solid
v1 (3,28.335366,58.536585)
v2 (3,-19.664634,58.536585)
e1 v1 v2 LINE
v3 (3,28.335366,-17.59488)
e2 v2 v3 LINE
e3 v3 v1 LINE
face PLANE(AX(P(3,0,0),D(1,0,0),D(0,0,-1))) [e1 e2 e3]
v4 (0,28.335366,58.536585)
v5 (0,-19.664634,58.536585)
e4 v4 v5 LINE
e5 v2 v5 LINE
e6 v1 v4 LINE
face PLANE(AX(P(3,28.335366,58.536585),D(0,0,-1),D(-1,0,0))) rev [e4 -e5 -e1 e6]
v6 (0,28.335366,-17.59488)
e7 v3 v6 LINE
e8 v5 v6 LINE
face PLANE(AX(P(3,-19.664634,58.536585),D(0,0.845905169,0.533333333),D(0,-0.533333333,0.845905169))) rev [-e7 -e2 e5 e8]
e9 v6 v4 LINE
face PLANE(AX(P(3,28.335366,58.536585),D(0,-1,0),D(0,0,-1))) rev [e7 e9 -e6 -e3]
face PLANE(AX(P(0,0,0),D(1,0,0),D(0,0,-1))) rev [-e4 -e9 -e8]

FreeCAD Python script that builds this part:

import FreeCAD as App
import Part
import Sketcher

V = App.Vector

doc = App.newDocument("Part")
body = doc.addObject("PartDesign::Body", "Body")

sketch1 = body.newObject("Sketcher::SketchObject", "Sketch")
sketch1.AttachmentSupport = (doc.getObject("YZ_Plane"), [""])
sketch1.MapMode = "FlatFace"
sketch1.addGeometry([
    Part.LineSegment(V(-20, 59, 0), V(28, -18, 0)),
    Part.LineSegment(V(28, -18, 0), V(28, 59, 0)),
    Part.LineSegment(V(28, 59, 0), V(-20, 59, 0)),
], False)
sketch1.addConstraint([
    Sketcher.Constraint("Coincident", 0, 2, 1, 1),
    Sketcher.Constraint("Coincident", 1, 2, 2, 1),
    Sketcher.Constraint("Coincident", 2, 2, 0, 1),
    Sketcher.Constraint("Vertical", 1),
    Sketcher.Constraint("Horizontal", 2),
    Sketcher.Constraint("DistanceX", 2, 2, 2, 1, 48.0),
    Sketcher.Constraint("Distance", 0, 90.0),
    Sketcher.Constraint("DistanceY", 0, 2, -1, 1, 17.59488),
    Sketcher.Constraint("DistanceX", -1, 1, 0, 2, 28.335366),
])
pad1 = body.newObject("PartDesign::Pad", "Pad")
pad1.Profile = sketch1
pad1.Length = 3

doc.recompute()
